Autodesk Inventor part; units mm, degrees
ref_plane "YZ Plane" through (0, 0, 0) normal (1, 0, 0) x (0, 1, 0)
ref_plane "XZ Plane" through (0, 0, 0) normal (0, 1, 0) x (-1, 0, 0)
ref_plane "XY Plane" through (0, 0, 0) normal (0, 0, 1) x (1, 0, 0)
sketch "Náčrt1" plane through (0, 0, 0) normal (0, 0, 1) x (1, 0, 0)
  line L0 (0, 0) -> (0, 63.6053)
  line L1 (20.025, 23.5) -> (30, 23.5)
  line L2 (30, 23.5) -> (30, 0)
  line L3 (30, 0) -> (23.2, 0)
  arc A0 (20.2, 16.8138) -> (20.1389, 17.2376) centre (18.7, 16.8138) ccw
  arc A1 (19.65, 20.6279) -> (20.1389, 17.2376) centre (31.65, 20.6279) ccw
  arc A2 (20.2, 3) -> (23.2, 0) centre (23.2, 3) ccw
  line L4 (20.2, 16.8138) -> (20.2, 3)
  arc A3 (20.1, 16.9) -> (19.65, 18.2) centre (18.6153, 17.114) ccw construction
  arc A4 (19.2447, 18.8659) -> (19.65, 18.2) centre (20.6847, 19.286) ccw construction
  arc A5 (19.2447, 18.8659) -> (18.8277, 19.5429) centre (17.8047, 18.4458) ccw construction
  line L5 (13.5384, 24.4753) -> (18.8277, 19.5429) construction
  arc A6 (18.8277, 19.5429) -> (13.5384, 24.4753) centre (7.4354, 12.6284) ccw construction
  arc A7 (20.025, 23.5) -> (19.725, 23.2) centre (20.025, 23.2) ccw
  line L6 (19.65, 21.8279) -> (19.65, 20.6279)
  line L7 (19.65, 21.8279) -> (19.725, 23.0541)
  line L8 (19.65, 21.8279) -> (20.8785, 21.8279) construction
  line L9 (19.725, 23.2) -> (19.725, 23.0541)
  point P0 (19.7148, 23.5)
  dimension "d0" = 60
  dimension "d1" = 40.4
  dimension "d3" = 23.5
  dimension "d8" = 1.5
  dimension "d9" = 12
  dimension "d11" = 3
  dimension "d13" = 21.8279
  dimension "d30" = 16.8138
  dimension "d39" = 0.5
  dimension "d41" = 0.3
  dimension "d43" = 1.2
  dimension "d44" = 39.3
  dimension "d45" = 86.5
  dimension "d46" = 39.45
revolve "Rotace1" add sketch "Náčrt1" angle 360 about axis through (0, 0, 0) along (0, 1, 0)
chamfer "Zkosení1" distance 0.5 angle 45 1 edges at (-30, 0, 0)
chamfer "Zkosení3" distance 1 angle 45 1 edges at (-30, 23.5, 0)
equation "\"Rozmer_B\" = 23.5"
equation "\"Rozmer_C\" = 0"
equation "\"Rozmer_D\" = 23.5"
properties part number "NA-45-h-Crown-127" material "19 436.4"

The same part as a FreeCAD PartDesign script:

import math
import FreeCAD as App
import Part
import Sketcher

V = App.Vector
Q = App.Units.Quantity


def edges_at(feature, points):
    """Names of the edges that pass closest to the given points."""
    edges = feature.Shape.Edges
    near = lambda p: min(range(len(edges)), key=lambda i: edges[i].distToShape(Part.Vertex(*p))[0])
    return sorted({f"Edge{near(p) + 1}" for p in points})

doc = App.newDocument("Part")
body = doc.addObject("PartDesign::Body", "Body")

# Sketch on XY plane
sketch1 = body.newObject("Sketcher::SketchObject", "Sketch")
sketch1.AttachmentSupport = (doc.getObject("XY_Plane"), [""])
sketch1.MapMode = "FlatFace"
sketch1.addGeometry([
    Part.LineSegment(V(30, 23.5, 0), V(20.02, 23.5, 0)),  # 0
    Part.ArcOfCircle(Part.Circle(V(20.02, 23.2, 0), V(0, 0, 1), 0.3), math.radians(90), math.radians(180)),  # 1
    Part.LineSegment(V(19.73, 23.2, 0), V(19.73, 23.05, 0)),  # 2
    Part.LineSegment(V(19.73, 23.05, 0), V(19.65, 21.83, 0)),  # 3
    Part.LineSegment(V(19.65, 21.83, 0), V(19.65, 20.63, 0)),  # 4
    Part.ArcOfCircle(Part.Circle(V(31.65, 20.63, 0), V(0, 0, 1), 12), math.radians(180), math.radians(196.41)),  # 5
    Part.ArcOfCircle(Part.Circle(V(18.7, 16.81, 0), V(0, 0, 1), 1.5), math.radians(0), math.radians(16.41)),  # 6
    Part.LineSegment(V(20.2, 16.81, 0), V(20.2, 3, 0)),  # 7
    Part.ArcOfCircle(Part.Circle(V(23.2, 3, 0), V(0, 0, 1), 3), math.radians(180), math.radians(270)),  # 8
    Part.LineSegment(V(23.2, 0, 0), V(30, 0, 0)),  # 9
    Part.LineSegment(V(30, 0, 0), V(30, 23.5, 0)),  # 10
], False)
sketch1.addConstraint([
    Sketcher.Constraint("Tangent", 0, 2, 1, 1),
    Sketcher.Constraint("Tangent", 1, 2, 2, 1),
    Sketcher.Constraint("Coincident", 2, 2, 3, 1),
    Sketcher.Constraint("Coincident", 3, 2, 4, 1),
    Sketcher.Constraint("Tangent", 4, 2, 5, 1),
    Sketcher.Constraint("Tangent", 5, 2, 6, 2),
    Sketcher.Constraint("Tangent", 6, 1, 7, 1),
    Sketcher.Constraint("Tangent", 7, 2, 8, 1),
    Sketcher.Constraint("Tangent", 8, 2, 9, 1),
    Sketcher.Constraint("Coincident", 9, 2, 10, 1),
    Sketcher.Constraint("Coincident", 10, 2, 0, 1),
    Sketcher.Constraint("Horizontal", 0),
    Sketcher.Constraint("Vertical", 2),
    Sketcher.Constraint("Vertical", 4),
    Sketcher.Constraint("Vertical", 7),
    Sketcher.Constraint("Horizontal", 9),
    Sketcher.Constraint("Vertical", 10),
    Sketcher.Constraint("PointOnObject", 8, 2, -1),
    Sketcher.Constraint("Radius", 5, 12.0),
    Sketcher.Constraint("Radius", 8, 3.0),
    Sketcher.Constraint("Radius", 1, 0.3),
    Sketcher.Constraint("Radius", 6, 1.5),
    Sketcher.Constraint("DistanceY", 4, 2, 4, 1, 1.2),
    Sketcher.Constraint("DistanceY", 10, 1, 10, 2, 23.5),
    Sketcher.Constraint("DistanceX", 9, 1, 9, 2, 6.8),
    Sketcher.Constraint("DistanceY", -1, 1, 3, 2, 21.828),
    Sketcher.Constraint("DistanceX", -1, 1, 9, 2, 30.0),
    Sketcher.Constraint("Angle", 3, Q("-93.5 deg")),
    Sketcher.Constraint("DistanceY", -1, 1, 6, 3, 16.8138),
    Sketcher.Constraint("DistanceX", 0, 2, 0, 1, 9.975),
])
revolution = body.newObject("PartDesign::Revolution", "Revolution")
revolution.Profile = sketch1
revolution.ReferenceAxis = (sketch1, ["V_Axis"])
revolution.Angle = 360
doc.recompute()

chamfer = body.newObject("PartDesign::Chamfer", "Chamfer")
chamfer.Base = (revolution, edges_at(revolution, [(-30, 0, 0)]))
chamfer.Size = 0.5
doc.recompute()

chamfer2 = body.newObject("PartDesign::Chamfer", "Chamfer001")
chamfer2.Base = (chamfer, edges_at(chamfer, [(-30, 23.5, 0)]))
chamfer2.Size = 1

doc.recompute()
